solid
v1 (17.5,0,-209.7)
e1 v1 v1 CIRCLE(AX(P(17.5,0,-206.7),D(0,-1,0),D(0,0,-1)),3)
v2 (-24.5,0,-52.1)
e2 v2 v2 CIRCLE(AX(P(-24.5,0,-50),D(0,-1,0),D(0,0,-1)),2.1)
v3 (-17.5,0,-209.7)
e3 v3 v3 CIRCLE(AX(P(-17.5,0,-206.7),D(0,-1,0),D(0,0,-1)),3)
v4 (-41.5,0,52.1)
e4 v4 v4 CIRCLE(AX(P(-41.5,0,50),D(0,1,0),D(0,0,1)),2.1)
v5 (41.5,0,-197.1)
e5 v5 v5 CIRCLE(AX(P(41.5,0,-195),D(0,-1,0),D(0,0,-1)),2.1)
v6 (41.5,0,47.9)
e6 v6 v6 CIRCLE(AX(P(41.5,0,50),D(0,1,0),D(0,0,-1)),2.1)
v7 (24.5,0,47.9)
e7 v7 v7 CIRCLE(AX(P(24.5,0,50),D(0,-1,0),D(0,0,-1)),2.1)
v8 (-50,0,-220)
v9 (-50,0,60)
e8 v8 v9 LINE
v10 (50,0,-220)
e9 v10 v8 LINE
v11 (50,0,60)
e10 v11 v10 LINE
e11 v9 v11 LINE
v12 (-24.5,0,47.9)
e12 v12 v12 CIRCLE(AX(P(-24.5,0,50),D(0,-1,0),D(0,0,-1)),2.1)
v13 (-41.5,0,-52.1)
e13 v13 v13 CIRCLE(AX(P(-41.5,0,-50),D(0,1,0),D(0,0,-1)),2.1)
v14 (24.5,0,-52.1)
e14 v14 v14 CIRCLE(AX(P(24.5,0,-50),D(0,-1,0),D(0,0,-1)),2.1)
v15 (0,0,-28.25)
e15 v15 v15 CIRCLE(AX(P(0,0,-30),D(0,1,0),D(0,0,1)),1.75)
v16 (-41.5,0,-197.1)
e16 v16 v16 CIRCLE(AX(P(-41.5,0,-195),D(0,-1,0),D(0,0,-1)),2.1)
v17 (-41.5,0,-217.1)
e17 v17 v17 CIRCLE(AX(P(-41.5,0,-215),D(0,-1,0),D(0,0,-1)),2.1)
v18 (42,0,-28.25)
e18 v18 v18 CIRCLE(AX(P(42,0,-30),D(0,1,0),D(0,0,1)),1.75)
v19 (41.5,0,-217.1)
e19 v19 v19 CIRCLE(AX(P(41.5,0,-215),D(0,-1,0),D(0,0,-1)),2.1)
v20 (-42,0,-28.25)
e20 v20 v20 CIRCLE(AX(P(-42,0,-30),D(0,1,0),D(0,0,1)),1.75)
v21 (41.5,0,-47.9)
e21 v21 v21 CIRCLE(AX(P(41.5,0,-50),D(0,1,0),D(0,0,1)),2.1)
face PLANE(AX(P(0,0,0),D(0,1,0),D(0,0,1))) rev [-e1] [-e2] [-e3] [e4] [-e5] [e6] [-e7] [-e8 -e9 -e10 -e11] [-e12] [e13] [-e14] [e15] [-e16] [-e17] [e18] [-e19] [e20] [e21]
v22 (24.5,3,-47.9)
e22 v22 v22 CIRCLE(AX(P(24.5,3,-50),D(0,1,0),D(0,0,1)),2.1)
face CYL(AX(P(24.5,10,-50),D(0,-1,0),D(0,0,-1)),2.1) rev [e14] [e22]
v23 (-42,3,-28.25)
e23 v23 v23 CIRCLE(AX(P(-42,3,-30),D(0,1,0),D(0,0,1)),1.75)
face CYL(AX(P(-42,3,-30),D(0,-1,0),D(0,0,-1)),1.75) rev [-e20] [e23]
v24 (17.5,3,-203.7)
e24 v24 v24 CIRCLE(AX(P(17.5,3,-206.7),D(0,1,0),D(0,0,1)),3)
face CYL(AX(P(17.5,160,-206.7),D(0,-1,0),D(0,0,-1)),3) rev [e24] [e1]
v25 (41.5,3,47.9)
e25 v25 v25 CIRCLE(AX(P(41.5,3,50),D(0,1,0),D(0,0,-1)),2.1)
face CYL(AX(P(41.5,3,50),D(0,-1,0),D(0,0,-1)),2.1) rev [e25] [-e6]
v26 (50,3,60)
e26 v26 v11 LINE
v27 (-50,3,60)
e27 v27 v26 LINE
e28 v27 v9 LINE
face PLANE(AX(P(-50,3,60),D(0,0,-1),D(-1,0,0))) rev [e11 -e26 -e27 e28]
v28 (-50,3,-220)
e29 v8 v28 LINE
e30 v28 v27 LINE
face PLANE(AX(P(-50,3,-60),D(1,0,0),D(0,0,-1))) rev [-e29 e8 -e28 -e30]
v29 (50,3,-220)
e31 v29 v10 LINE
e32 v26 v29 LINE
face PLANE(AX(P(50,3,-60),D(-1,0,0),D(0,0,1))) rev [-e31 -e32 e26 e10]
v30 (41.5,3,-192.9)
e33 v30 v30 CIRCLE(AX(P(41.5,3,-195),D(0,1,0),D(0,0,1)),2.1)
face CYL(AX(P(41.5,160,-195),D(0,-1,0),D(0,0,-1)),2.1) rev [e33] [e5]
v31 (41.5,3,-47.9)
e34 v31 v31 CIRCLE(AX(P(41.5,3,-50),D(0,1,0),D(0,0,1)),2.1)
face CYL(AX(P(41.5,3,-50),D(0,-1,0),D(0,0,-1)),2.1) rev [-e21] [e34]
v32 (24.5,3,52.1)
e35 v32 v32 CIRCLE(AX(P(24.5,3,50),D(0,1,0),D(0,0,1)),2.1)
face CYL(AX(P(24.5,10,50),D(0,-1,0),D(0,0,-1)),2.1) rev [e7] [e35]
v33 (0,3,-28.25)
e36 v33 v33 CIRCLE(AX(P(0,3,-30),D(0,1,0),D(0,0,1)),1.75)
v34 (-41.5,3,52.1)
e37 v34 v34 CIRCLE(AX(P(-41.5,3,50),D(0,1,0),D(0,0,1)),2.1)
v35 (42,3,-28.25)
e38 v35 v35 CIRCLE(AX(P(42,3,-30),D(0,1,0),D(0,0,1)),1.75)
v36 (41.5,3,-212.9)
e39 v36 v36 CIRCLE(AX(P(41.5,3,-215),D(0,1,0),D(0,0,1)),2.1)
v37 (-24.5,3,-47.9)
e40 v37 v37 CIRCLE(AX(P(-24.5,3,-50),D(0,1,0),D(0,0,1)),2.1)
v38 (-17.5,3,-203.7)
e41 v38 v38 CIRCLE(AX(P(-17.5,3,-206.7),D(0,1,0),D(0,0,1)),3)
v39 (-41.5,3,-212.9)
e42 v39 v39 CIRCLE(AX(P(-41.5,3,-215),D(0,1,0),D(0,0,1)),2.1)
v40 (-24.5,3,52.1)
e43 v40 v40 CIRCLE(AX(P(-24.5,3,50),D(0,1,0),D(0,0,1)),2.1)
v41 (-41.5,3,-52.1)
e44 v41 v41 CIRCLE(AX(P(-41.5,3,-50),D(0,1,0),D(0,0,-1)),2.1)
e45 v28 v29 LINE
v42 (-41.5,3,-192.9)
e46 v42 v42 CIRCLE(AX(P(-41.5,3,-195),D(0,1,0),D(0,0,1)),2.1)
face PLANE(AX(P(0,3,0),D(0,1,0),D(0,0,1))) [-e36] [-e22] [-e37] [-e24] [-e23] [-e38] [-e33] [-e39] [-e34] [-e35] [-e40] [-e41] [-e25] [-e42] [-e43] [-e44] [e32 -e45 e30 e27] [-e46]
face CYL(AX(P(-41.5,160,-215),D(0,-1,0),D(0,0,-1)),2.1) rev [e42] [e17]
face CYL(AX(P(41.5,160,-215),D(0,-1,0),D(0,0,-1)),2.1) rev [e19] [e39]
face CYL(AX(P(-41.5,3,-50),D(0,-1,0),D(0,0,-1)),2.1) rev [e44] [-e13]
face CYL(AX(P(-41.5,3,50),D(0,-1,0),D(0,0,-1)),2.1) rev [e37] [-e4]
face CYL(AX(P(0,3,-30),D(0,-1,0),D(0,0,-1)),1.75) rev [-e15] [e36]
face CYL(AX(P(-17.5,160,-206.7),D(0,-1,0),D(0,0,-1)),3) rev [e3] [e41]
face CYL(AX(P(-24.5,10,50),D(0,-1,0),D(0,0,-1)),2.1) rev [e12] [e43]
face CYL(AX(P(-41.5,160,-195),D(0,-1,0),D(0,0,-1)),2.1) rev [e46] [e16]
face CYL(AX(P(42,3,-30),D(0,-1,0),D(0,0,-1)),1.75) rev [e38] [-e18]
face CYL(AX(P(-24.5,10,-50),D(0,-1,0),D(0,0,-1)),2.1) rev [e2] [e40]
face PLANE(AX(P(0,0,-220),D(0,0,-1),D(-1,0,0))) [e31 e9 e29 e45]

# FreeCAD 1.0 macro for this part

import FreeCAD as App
import Part
import Sketcher
from FreeCAD import Vector

doc = App.newDocument("Part")
body = doc.addObject("PartDesign::Body", "Body")

sketch1 = body.newObject("Sketcher::SketchObject", "Sketch")
sketch1.AttachmentSupport = (doc.getObject("XZ_Plane"), [""])
sketch1.MapMode = "FlatFace"
sketch1.addGeometry([
    Part.LineSegment(Vector(-50, -60, 0), Vector(-50, 60, 0)),
    Part.LineSegment(Vector(-50, 60, 0), Vector(50, 60, 0)),
    Part.LineSegment(Vector(50, 60, 0), Vector(50, -60, 0)),
    Part.LineSegment(Vector(50, -60, 0), Vector(-50, -60, 0)),
    Part.Circle(Vector(-41.5, 50, 0), Vector(0, 0, 1), 2.1),
    Part.Circle(Vector(41.5, 50, 0), Vector(0, 0, 1), 2.1),
    Part.Circle(Vector(-42, -30, 0), Vector(0, 0, 1), 1.75),
    Part.Circle(Vector(-41.5, -50, 0), Vector(0, 0, 1), 2.1),
    Part.Circle(Vector(0, -30, 0), Vector(0, 0, 1), 1.75),
    Part.Circle(Vector(42, -30, 0), Vector(0, 0, 1), 1.75),
    Part.Circle(Vector(41.5, -50, 0), Vector(0, 0, 1), 2.1),
], False)
sketch1.addConstraint([
    Sketcher.Constraint("Coincident", 0, 2, 1, 1),
    Sketcher.Constraint("Coincident", 1, 2, 2, 1),
    Sketcher.Constraint("Coincident", 2, 2, 3, 1),
    Sketcher.Constraint("Coincident", 3, 2, 0, 1),
    Sketcher.Constraint("Vertical", 0),
    Sketcher.Constraint("Horizontal", 1),
    Sketcher.Constraint("Vertical", 2),
    Sketcher.Constraint("Horizontal", 3),
    Sketcher.Constraint("Equal", 4, 5),
    Sketcher.Constraint("Equal", 5, 7),
    Sketcher.Constraint("Equal", 6, 8),
    Sketcher.Constraint("Equal", 8, 9),
    Sketcher.Constraint("Equal", 7, 10),
    Sketcher.Constraint("Symmetric", 5, 3, 7, 3, -1, 1),
    Sketcher.Constraint("Symmetric", 4, 3, 10, 3, -1, 1),
    Sketcher.Constraint("Symmetric", 0, 2, 2, 2, -1, 1),
    Sketcher.Constraint("Symmetric", 4, 3, 5, 3, -2),
    Sketcher.Constraint("Symmetric", 6, 3, 9, 3, -2),
    Sketcher.Constraint("PointOnObject", 8, 3, -2),
    Sketcher.Constraint("Horizontal", 6, 3, 8, 3),
    Sketcher.Constraint("Diameter", 4, 4.2),
    Sketcher.Constraint("Diameter", 6, 3.5),
    Sketcher.Constraint("DistanceX", 1, 1, 1, 2, 100.0),
    Sketcher.Constraint("DistanceY", 0, 1, 0, 2, 120.0),
    Sketcher.Constraint("DistanceY", -1, 1, 4, 3, 50.0),
    Sketcher.Constraint("DistanceX", 6, 3, -1, 1, 42.0),
    Sketcher.Constraint("DistanceY", 6, 3, -1, 1, 30.0),
    Sketcher.Constraint("DistanceX", 4, 3, 5, 3, 83.0),
])
pad1 = body.newObject("PartDesign::Pad", "Pad")
pad1.Profile = sketch1
pad1.Length = 3
pad1.Reversed = True

sketch2 = body.newObject("Sketcher::SketchObject", "Sketch001")
sketch2.AttachmentSupport = (doc.getObject("XZ_Plane"), [""])
sketch2.MapMode = "FlatFace"
sketch2.addGeometry([
    Part.Circle(Vector(-24.5, -50, 0), Vector(0, 0, 1), 2.1),
    Part.Circle(Vector(24.5, -50, 0), Vector(0, 0, 1), 2.1),
    Part.Circle(Vector(24.5, 50, 0), Vector(0, 0, 1), 2.1),
    Part.Circle(Vector(-24.5, 50, 0), Vector(0, 0, 1), 2.1),
], False)
sketch2.addConstraint([
    Sketcher.Constraint("Equal", 0, 1),
    Sketcher.Constraint("Equal", 1, 2),
    Sketcher.Constraint("Equal", 2, 3),
    Sketcher.Constraint("Symmetric", 0, 3, 2, 3, -1, 1),
    Sketcher.Constraint("Symmetric", 1, 3, 3, 3, -1, 1),
    Sketcher.Constraint("Symmetric", 0, 3, 1, 3, -2),
    Sketcher.Constraint("Diameter", 0, 4.2),
    Sketcher.Constraint("DistanceY", 0, 3, -1, 1, 50.0),
    Sketcher.Constraint("DistanceX", 0, 3, 1, 3, 49.0),
])
pocket1 = body.newObject("PartDesign::Pocket", "Pocket")
pocket1.Profile = sketch2
pocket1.Length = 10

sketch3 = body.newObject("Sketcher::SketchObject", "Sketch002")
sketch3.AttachmentSupport = (doc.getObject("XY_Plane"), [""])
sketch3.MapMode = "FlatFace"
sketch3.AttachmentOffset = App.Placement(Vector(0, 0, -60), App.Rotation())
sketch3.addGeometry([
    Part.LineSegment(Vector(50, 3, 0), Vector(50, 0, 0)),
    Part.LineSegment(Vector(50, 0, 0), Vector(-50, 0, 0)),
    Part.LineSegment(Vector(-50, 0, 0), Vector(-50, 3, 0)),
    Part.LineSegment(Vector(-50, 3, 0), Vector(50, 3, 0)),
], False)
sketch3.addConstraint([
    Sketcher.Constraint("Coincident", 0, 2, 1, 1),
    Sketcher.Constraint("Coincident", 1, 2, 2, 1),
    Sketcher.Constraint("Coincident", 2, 2, 3, 1),
    Sketcher.Constraint("Coincident", 3, 2, 0, 1),
    Sketcher.Constraint("Vertical", 0),
    Sketcher.Constraint("Horizontal", 1),
    Sketcher.Constraint("Vertical", 2),
    Sketcher.Constraint("Horizontal", 3),
    Sketcher.Constraint("Symmetric", 0, 2, 1, 2, -1, 1),
    Sketcher.Constraint("DistanceX", 1, 2, 1, 1, 100.0),
    Sketcher.Constraint("DistanceY", 0, 2, 0, 1, 3.0),
])
pad2 = body.newObject("PartDesign::Pad", "Pad001")
pad2.Profile = sketch3
pad2.Length = 160
pad2.Reversed = True

sketch4 = body.newObject("Sketcher::SketchObject", "Sketch003")
sketch4.AttachmentSupport = (doc.getObject("XZ_Plane"), [""])
sketch4.MapMode = "FlatFace"
sketch4.addGeometry([
    Part.Circle(Vector(17.5, -206.7, 0), Vector(0, 0, 1), 3),
    Part.Circle(Vector(-17.5, -206.7, 0), Vector(0, 0, 1), 3),
    Part.Circle(Vector(-41.5, -215, 0), Vector(0, 0, 1), 2.1),
    Part.Circle(Vector(-41.5, -195, 0), Vector(0, 0, 1), 2.1),
    Part.Circle(Vector(41.5, -195, 0), Vector(0, 0, 1), 2.1),
    Part.Circle(Vector(41.5, -215, 0), Vector(0, 0, 1), 2.1),
], False)
sketch4.addConstraint([
    Sketcher.Constraint("Equal", 0, 1),
    Sketcher.Constraint("Equal", 2, 3),
    Sketcher.Constraint("Equal", 3, 4),
    Sketcher.Constraint("Equal", 4, 5),
    Sketcher.Constraint("Symmetric", 0, 3, 1, 3, -2),
    Sketcher.Constraint("Symmetric", 3, 3, 4, 3, -2),
    Sketcher.Constraint("Symmetric", 2, 3, 5, 3, -2),
    Sketcher.Constraint("Vertical", 2, 3, 3, 3),
    Sketcher.Constraint("Diameter", 0, 6.0),
    Sketcher.Constraint("Diameter", 2, 4.2),
    Sketcher.Constraint("DistanceY", 2, 3, -1, 1, 215.0),
    Sketcher.Constraint("DistanceY", 3, 3, -1, 1, 195.0),
    Sketcher.Constraint("DistanceX", 1, 3, 0, 3, 35.0),
    Sketcher.Constraint("DistanceX", 2, 3, 1, 3, 24.0),
    Sketcher.Constraint("DistanceY", 0, 3, -1, 1, 206.7),
])
pocket2 = body.newObject("PartDesign::Pocket", "Pocket001")
pocket2.Profile = sketch4
pocket2.Length = 160

doc.recompute()
